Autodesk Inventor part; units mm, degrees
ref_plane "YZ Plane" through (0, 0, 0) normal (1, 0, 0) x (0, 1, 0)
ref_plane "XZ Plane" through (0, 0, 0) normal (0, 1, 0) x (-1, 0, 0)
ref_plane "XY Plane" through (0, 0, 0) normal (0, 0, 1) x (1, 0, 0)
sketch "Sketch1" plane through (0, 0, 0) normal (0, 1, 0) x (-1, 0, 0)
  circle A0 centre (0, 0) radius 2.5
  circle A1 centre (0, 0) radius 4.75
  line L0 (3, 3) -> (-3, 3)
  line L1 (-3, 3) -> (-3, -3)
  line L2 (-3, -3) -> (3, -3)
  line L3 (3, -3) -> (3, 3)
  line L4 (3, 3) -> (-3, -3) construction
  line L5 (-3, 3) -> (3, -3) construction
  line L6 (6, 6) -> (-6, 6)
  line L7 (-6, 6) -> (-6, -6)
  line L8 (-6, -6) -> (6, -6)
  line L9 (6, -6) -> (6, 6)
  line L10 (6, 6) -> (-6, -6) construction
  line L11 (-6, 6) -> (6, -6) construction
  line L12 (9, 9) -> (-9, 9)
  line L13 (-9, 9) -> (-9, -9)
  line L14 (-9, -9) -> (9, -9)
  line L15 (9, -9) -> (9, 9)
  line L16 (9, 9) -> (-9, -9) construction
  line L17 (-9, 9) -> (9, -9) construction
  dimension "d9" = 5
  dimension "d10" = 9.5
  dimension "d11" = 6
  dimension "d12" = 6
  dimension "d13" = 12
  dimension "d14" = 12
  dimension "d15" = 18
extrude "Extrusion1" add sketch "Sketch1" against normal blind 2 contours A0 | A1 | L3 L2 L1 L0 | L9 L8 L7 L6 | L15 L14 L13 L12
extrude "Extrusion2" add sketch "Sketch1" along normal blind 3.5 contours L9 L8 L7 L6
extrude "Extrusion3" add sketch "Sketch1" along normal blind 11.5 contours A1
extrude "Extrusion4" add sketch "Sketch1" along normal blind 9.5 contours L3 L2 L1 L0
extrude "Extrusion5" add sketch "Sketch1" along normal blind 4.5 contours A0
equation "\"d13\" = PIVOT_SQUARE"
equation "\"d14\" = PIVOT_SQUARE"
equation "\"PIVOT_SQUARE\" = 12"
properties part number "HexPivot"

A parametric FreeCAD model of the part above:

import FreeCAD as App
import Part
import Sketcher
from FreeCAD import Vector
Q = App.Units.Quantity

doc = App.newDocument("Part")
body = doc.addObject("PartDesign::Body", "Body")

sketch1 = body.newObject("Sketcher::SketchObject", "Sketch")
sketch1.AttachmentSupport = (doc.getObject("XZ_Plane"), [""])
sketch1.MapMode = "FlatFace"
sketch1.addGeometry([
    Part.LineSegment(Vector(-9, -9, 0), Vector(-9, 9, 0)),
    Part.LineSegment(Vector(-9, 9, 0), Vector(9, 9, 0)),
    Part.LineSegment(Vector(9, 9, 0), Vector(9, -9, 0)),
    Part.LineSegment(Vector(9, -9, 0), Vector(-9, -9, 0)),
], False)
sketch1.addConstraint([
    Sketcher.Constraint("Coincident", 0, 2, 1, 1),
    Sketcher.Constraint("Coincident", 1, 2, 2, 1),
    Sketcher.Constraint("Coincident", 2, 2, 3, 1),
    Sketcher.Constraint("Coincident", 3, 2, 0, 1),
    Sketcher.Constraint("Vertical", 0),
    Sketcher.Constraint("Horizontal", 1),
    Sketcher.Constraint("Vertical", 2),
    Sketcher.Constraint("Horizontal", 3),
    Sketcher.Constraint("Symmetric", 0, 2, 2, 2, -1, 1),
    Sketcher.Constraint("Equal", 3, 0),
    Sketcher.Constraint("DistanceX", 1, 1, 1, 2, Q("18 mm")),
])
pad1 = body.newObject("PartDesign::Pad", "Pad")
pad1.Profile = sketch1
pad1.Length = 2

sketch2 = body.newObject("Sketcher::SketchObject", "Sketch001")
sketch2.AttachmentSupport = (doc.getObject("XZ_Plane"), [""])
sketch2.MapMode = "FlatFace"
sketch2.addGeometry([
    Part.LineSegment(Vector(-6, -6, 0), Vector(-6, 6, 0)),
    Part.LineSegment(Vector(-6, 6, 0), Vector(6, 6, 0)),
    Part.LineSegment(Vector(6, 6, 0), Vector(6, -6, 0)),
    Part.LineSegment(Vector(6, -6, 0), Vector(-6, -6, 0)),
    Part.Circle(Vector(0, 0, 0), Vector(0, 0, 1), 4.8),
], False)
sketch2.addConstraint([
    Sketcher.Constraint("Coincident", 0, 2, 1, 1),
    Sketcher.Constraint("Coincident", 1, 2, 2, 1),
    Sketcher.Constraint("Coincident", 2, 2, 3, 1),
    Sketcher.Constraint("Coincident", 3, 2, 0, 1),
    Sketcher.Constraint("Vertical", 0),
    Sketcher.Constraint("Horizontal", 1),
    Sketcher.Constraint("Vertical", 2),
    Sketcher.Constraint("Horizontal", 3),
    Sketcher.Constraint("Coincident", 4, 3, -1, 1),
    Sketcher.Constraint("Symmetric", 0, 2, 2, 2, -1, 1),
    Sketcher.Constraint("Equal", 3, 0),
    Sketcher.Constraint("Diameter", 4, Q("9.5 mm")),
    Sketcher.Constraint("DistanceX", 1, 1, 1, 2, Q("12 mm")),
])
pad2 = body.newObject("PartDesign::Pad", "Pad001")
pad2.Profile = sketch2
pad2.Length = 3.5
pad2.Reversed = True

sketch3 = body.newObject("Sketcher::SketchObject", "Sketch002")
sketch3.AttachmentSupport = (doc.getObject("XZ_Plane"), [""])
sketch3.MapMode = "FlatFace"
sketch3.addGeometry([
    Part.Circle(Vector(0, 0, 0), Vector(0, 0, 1), 4.8),
    Part.LineSegment(Vector(3, 3, 0), Vector(-3, 3, 0)),
    Part.LineSegment(Vector(-3, 3, 0), Vector(-3, -3, 0)),
    Part.LineSegment(Vector(-3, -3, 0), Vector(3, -3, 0)),
    Part.LineSegment(Vector(3, -3, 0), Vector(3, 3, 0)),
], False)
sketch3.addConstraint([
    Sketcher.Constraint("Coincident", 1, 2, 2, 1),
    Sketcher.Constraint("Coincident", 2, 2, 3, 1),
    Sketcher.Constraint("Coincident", 3, 2, 4, 1),
    Sketcher.Constraint("Coincident", 4, 2, 1, 1),
    Sketcher.Constraint("Horizontal", 1),
    Sketcher.Constraint("Vertical", 2),
    Sketcher.Constraint("Horizontal", 3),
    Sketcher.Constraint("Vertical", 4),
    Sketcher.Constraint("Coincident", 0, 3, -1, 1),
    Sketcher.Constraint("Symmetric", 1, 2, 3, 2, -1, 1),
    Sketcher.Constraint("Equal", 3, 2),
    Sketcher.Constraint("Diameter", 0, Q("9.5 mm")),
    Sketcher.Constraint("DistanceX", 1, 2, 1, 1, Q("6 mm")),
])
pad3 = body.newObject("PartDesign::Pad", "Pad002")
pad3.Profile = sketch3
pad3.Length = 11.5
pad3.Reversed = True

sketch4 = body.newObject("Sketcher::SketchObject", "Sketch003")
sketch4.AttachmentSupport = (doc.getObject("XZ_Plane"), [""])
sketch4.MapMode = "FlatFace"
sketch4.addGeometry([
    Part.LineSegment(Vector(-3, -3, 0), Vector(-3, 3, 0)),
    Part.LineSegment(Vector(-3, 3, 0), Vector(3, 3, 0)),
    Part.LineSegment(Vector(3, 3, 0), Vector(3, -3, 0)),
    Part.LineSegment(Vector(3, -3, 0), Vector(-3, -3, 0)),
    Part.Circle(Vector(0, 0, 0), Vector(0, 0, 1), 2.5),
], False)
sketch4.addConstraint([
    Sketcher.Constraint("Coincident", 0, 2, 1, 1),
    Sketcher.Constraint("Coincident", 1, 2, 2, 1),
    Sketcher.Constraint("Coincident", 2, 2, 3, 1),
    Sketcher.Constraint("Coincident", 3, 2, 0, 1),
    Sketcher.Constraint("Vertical", 0),
    Sketcher.Constraint("Horizontal", 1),
    Sketcher.Constraint("Vertical", 2),
    Sketcher.Constraint("Horizontal", 3),
    Sketcher.Constraint("Coincident", 4, 3, -1, 1),
    Sketcher.Constraint("Symmetric", 0, 2, 2, 2, -1, 1),
    Sketcher.Constraint("Equal", 3, 0),
    Sketcher.Constraint("Diameter", 4, Q("5 mm")),
    Sketcher.Constraint("DistanceX", 1, 1, 1, 2, Q("6 mm")),
])
pad4 = body.newObject("PartDesign::Pad", "Pad003")
pad4.Profile = sketch4
pad4.Length = 9.5
pad4.Reversed = True

sketch5 = body.newObject("Sketcher::SketchObject", "Sketch004")
sketch5.AttachmentSupport = (doc.getObject("XZ_Plane"), [""])
sketch5.MapMode = "FlatFace"
sketch5.addGeometry(Part.Circle(Vector(0, 0, 0), Vector(0, 0, 1), 2.5), False)
sketch5.addConstraint([
    Sketcher.Constraint("Coincident", 0, 3, -1, 1),
    Sketcher.Constraint("Diameter", 0, Q("5 mm")),
])
pad5 = body.newObject("PartDesign::Pad", "Pad004")
pad5.Profile = sketch5
pad5.Length = 4.5
pad5.Reversed = True

doc.recompute()
